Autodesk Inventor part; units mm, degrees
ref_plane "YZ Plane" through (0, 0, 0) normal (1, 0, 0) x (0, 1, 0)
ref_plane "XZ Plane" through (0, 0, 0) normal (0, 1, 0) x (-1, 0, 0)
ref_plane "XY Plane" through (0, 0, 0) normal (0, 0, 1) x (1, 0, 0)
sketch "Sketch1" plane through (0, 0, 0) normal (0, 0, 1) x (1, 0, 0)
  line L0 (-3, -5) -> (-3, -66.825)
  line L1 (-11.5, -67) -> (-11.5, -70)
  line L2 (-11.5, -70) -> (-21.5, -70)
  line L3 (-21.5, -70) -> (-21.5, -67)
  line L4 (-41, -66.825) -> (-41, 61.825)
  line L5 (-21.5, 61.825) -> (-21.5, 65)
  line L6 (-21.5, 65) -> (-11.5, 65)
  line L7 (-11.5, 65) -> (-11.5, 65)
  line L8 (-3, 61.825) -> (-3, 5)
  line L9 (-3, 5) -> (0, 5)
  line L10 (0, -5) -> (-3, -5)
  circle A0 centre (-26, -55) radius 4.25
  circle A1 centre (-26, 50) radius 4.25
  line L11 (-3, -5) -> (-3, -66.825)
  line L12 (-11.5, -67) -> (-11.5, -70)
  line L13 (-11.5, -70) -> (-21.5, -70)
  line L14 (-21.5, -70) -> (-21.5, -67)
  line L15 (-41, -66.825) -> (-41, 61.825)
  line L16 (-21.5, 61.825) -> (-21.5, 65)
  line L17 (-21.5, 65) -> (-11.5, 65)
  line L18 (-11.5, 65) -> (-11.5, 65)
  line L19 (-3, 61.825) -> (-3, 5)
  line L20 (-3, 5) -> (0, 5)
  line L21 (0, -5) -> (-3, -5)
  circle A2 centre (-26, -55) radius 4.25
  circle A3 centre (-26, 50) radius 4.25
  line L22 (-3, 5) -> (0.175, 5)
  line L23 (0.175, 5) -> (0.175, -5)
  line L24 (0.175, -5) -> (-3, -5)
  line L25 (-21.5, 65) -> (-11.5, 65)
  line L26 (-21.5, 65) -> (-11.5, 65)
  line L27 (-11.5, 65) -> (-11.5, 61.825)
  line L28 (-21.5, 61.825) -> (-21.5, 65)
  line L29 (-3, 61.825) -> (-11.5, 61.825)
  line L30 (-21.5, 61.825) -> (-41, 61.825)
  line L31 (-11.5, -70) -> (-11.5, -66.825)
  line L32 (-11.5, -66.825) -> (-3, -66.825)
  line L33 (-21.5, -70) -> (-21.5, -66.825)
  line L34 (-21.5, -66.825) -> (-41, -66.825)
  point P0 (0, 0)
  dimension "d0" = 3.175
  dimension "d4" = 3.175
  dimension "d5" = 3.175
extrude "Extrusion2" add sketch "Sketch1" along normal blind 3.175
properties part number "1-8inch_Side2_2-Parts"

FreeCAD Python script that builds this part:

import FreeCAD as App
import Part
import Sketcher
from FreeCAD import Vector

doc = App.newDocument("Part")
params = doc.addObject("Spreadsheet::Sheet", "Params")
for row, (alias, value) in enumerate([
    ("sketch1_diameter", "8.5 mm"),
    ("sketch1_width", "10 mm"),
    ("sketch1_width2", "8.5 mm"),
    ("sketch1_width3", "19.5 mm"),
    ("pad1_length", "3.175 mm"),
], start=1):
    params.set(f"A{row}", alias)
    params.set(f"B{row}", "=" + value)
    params.setAlias(f"B{row}", alias)

body = doc.addObject("PartDesign::Body", "Body")

# Sketch on XY plane
sketch1 = doc.addObject("Sketcher::SketchObject", "Sketch")
body.addObject(sketch1)
sketch1.AttachmentSupport = (doc.XY_Plane, [""])
sketch1.MapMode = "FlatFace"
sketch1.addGeometry([
    Part.LineSegment(Vector(-3, -66.8, 0), Vector(-3, -5, 0)),  # 0
    Part.LineSegment(Vector(-3, -5, 0), Vector(0.2, -5, 0)),  # 1
    Part.LineSegment(Vector(0.2, -5, 0), Vector(0.2, 5, 0)),  # 2
    Part.LineSegment(Vector(0.2, 5, 0), Vector(-3, 5, 0)),  # 3
    Part.LineSegment(Vector(-3, 5, 0), Vector(-3, 61.8, 0)),  # 4
    Part.LineSegment(Vector(-3, 61.8, 0), Vector(-11.5, 61.8, 0)),  # 5
    Part.LineSegment(Vector(-11.5, 61.8, 0), Vector(-11.5, 65, 0)),  # 6
    Part.LineSegment(Vector(-11.5, 65, 0), Vector(-21.5, 65, 0)),  # 7
    Part.LineSegment(Vector(-21.5, 65, 0), Vector(-21.5, 61.8, 0)),  # 8
    Part.LineSegment(Vector(-21.5, 61.8, 0), Vector(-41, 61.8, 0)),  # 9
    Part.LineSegment(Vector(-41, 61.8, 0), Vector(-41, -66.8, 0)),  # 10
    Part.LineSegment(Vector(-41, -66.8, 0), Vector(-21.5, -66.8, 0)),  # 11
    Part.LineSegment(Vector(-21.5, -66.8, 0), Vector(-21.5, -70, 0)),  # 12
    Part.LineSegment(Vector(-21.5, -70, 0), Vector(-11.5, -70, 0)),  # 13
    Part.LineSegment(Vector(-11.5, -70, 0), Vector(-11.5, -66.8, 0)),  # 14
    Part.LineSegment(Vector(-11.5, -66.8, 0), Vector(-3, -66.8, 0)),  # 15
    Part.Circle(Vector(-26, -55, 0), Vector(0, 0, 1), 4.2),  # 16
    Part.Circle(Vector(-26, 50, 0), Vector(0, 0, 1), 4.2),  # 17
], False)
sketch1.addConstraint([
    Sketcher.Constraint("Coincident", 0, 2, 1, 1),
    Sketcher.Constraint("Coincident", 1, 2, 2, 1),
    Sketcher.Constraint("Coincident", 2, 2, 3, 1),
    Sketcher.Constraint("Coincident", 3, 2, 4, 1),
    Sketcher.Constraint("Coincident", 4, 2, 5, 1),
    Sketcher.Constraint("Coincident", 5, 2, 6, 1),
    Sketcher.Constraint("Coincident", 6, 2, 7, 1),
    Sketcher.Constraint("Coincident", 7, 2, 8, 1),
    Sketcher.Constraint("Coincident", 8, 2, 9, 1),
    Sketcher.Constraint("Coincident", 9, 2, 10, 1),
    Sketcher.Constraint("Coincident", 10, 2, 11, 1),
    Sketcher.Constraint("Coincident", 11, 2, 12, 1),
    Sketcher.Constraint("Coincident", 12, 2, 13, 1),
    Sketcher.Constraint("Coincident", 13, 2, 14, 1),
    Sketcher.Constraint("Coincident", 14, 2, 15, 1),
    Sketcher.Constraint("Coincident", 15, 2, 0, 1),
    Sketcher.Constraint("Vertical", 0),
    Sketcher.Constraint("Horizontal", 1),
    Sketcher.Constraint("Vertical", 2),
    Sketcher.Constraint("Horizontal", 3),
    Sketcher.Constraint("Vertical", 4),
    Sketcher.Constraint("Horizontal", 5),
    Sketcher.Constraint("Vertical", 6),
    Sketcher.Constraint("Horizontal", 7),
    Sketcher.Constraint("Vertical", 8),
    Sketcher.Constraint("Horizontal", 9),
    Sketcher.Constraint("Vertical", 10),
    Sketcher.Constraint("Horizontal", 11),
    Sketcher.Constraint("Vertical", 12),
    Sketcher.Constraint("Horizontal", 13),
    Sketcher.Constraint("Vertical", 14),
    Sketcher.Constraint("Horizontal", 15),
    Sketcher.Constraint("Equal", 16, 17),
    Sketcher.Constraint("Symmetric", 0, 2, 3, 2, -1),
    Sketcher.Constraint("Horizontal", 5, 2, 8, 2),
    Sketcher.Constraint("Horizontal", 11, 2, 14, 2),
    Sketcher.Constraint("Vertical", 16, 3, 17, 3),
    Sketcher.Constraint("Vertical", 8, 2, 11, 2),
    Sketcher.Constraint("Vertical", 6, 2, 13, 2),
    Sketcher.Constraint("Equal", 13, 2),
    Sketcher.Constraint("Equal", 3, 6),
    Sketcher.Constraint("Equal", 8, 12),
    Sketcher.Constraint("Diameter", 16, 8.5),
    Sketcher.Constraint("DistanceX", 1, 1, 1, 2, 3.175),
    Sketcher.Constraint("DistanceX", 7, 2, 7, 1, 10.0),
    Sketcher.Constraint("DistanceX", 5, 2, 5, 1, 8.5),
    Sketcher.Constraint("DistanceX", 9, 2, 9, 1, 19.5),
    Sketcher.Constraint("DistanceX", 16, 3, -1, 1, 26.0),
    Sketcher.Constraint("DistanceY", 16, 3, -1, 1, 55.0),
    Sketcher.Constraint("DistanceY", -1, 1, 17, 3, 50.0),
    Sketcher.Constraint("DistanceX", 0, 2, -1, 1, 3.0),
    Sketcher.Constraint("DistanceY", -1, 1, 6, 2, 65.0),
    Sketcher.Constraint("DistanceY", 12, 2, -1, 1, 70.0),
])
sketch1.setExpression("Constraints[42]", "Params.sketch1_diameter")
sketch1.setExpression("Constraints[44]", "Params.sketch1_width")
sketch1.setExpression("Constraints[45]", "Params.sketch1_width2")
sketch1.setExpression("Constraints[46]", "Params.sketch1_width3")
pad1 = doc.addObject("PartDesign::Pad", "Pad")
body.addObject(pad1)
pad1.Profile = sketch1
pad1.setExpression("Length", "Params.pad1_length")

doc.recompute()
